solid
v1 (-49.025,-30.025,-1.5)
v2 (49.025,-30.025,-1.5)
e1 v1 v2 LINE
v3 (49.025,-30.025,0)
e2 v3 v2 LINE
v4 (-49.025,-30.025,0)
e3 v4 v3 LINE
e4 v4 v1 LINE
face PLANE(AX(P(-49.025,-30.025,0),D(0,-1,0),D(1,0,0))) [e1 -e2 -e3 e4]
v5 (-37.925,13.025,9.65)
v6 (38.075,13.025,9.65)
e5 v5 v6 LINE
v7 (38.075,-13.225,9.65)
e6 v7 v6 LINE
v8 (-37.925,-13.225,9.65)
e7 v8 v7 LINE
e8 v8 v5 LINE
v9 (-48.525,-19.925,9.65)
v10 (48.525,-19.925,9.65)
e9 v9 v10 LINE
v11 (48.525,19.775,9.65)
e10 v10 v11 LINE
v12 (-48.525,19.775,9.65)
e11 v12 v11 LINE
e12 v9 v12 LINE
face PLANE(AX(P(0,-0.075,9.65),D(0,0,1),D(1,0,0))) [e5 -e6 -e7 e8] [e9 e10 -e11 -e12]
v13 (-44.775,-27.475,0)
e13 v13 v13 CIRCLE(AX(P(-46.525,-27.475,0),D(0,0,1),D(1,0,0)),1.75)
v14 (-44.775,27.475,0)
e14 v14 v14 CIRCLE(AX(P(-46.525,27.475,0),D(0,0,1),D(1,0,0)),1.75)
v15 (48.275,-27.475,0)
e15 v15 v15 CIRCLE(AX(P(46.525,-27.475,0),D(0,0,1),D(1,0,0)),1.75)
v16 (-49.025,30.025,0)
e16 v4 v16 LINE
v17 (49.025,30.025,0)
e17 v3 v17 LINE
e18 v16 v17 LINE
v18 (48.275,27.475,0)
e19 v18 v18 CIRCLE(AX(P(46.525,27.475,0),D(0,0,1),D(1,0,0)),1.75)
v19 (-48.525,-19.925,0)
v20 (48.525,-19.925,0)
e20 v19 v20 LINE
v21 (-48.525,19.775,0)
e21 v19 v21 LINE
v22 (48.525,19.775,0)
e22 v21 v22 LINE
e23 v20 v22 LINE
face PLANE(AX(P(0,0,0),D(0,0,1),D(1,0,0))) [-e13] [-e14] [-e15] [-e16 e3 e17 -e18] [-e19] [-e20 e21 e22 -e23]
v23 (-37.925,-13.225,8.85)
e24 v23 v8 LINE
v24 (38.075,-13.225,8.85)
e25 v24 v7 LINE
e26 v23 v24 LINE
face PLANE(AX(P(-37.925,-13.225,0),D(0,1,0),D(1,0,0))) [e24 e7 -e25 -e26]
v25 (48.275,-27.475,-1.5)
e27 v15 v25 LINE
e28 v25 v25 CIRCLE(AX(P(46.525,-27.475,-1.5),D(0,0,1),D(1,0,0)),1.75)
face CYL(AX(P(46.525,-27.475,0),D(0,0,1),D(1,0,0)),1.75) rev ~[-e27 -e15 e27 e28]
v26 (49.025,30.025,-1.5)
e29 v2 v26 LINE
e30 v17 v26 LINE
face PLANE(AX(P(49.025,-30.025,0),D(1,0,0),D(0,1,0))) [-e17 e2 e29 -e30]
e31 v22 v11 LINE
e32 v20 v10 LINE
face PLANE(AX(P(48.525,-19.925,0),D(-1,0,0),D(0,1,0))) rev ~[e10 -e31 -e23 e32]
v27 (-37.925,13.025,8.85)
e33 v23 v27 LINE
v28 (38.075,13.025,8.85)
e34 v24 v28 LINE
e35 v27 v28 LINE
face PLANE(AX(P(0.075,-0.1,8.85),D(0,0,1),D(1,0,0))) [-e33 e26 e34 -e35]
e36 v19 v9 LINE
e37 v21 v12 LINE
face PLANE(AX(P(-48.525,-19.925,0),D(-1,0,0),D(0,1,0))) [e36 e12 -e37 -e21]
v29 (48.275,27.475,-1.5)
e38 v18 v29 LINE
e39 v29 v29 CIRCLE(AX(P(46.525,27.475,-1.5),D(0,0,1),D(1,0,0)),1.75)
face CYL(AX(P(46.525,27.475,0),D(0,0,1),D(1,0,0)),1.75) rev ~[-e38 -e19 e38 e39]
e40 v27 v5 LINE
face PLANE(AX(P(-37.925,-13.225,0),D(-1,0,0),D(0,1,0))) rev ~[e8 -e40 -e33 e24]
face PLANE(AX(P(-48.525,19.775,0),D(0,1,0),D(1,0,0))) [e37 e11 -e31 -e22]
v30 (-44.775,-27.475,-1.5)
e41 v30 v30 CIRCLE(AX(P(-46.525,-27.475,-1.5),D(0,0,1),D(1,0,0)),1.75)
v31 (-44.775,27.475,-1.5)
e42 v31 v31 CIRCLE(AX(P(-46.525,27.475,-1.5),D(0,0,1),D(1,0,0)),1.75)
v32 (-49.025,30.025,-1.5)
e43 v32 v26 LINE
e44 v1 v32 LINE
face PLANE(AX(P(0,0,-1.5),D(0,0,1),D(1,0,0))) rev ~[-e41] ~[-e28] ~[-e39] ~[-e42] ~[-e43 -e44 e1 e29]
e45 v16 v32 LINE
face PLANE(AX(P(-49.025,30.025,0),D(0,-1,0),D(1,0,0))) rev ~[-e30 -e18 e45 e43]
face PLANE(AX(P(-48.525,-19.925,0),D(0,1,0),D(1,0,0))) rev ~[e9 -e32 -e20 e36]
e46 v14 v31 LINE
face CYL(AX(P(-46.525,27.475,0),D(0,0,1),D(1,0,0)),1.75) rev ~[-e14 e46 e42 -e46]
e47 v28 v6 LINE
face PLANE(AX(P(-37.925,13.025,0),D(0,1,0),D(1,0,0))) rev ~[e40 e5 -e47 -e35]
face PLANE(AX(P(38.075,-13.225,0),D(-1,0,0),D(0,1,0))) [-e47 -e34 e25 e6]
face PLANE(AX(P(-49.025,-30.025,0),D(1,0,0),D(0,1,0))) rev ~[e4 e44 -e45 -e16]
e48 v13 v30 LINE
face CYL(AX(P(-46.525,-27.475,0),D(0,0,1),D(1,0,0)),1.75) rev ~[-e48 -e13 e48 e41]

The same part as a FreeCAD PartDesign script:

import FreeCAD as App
import Part
import Sketcher
Q = App.Units.Quantity

doc = App.newDocument("Part")
params = doc.addObject("Spreadsheet::Sheet", "Params")
for row, (alias, value) in enumerate([
    ("sketch1_diameter", "3.5 mm"),
    ("sketch1_width", "98.05 mm"),
    ("sketch1_height", "60.05 mm"),
    ("pad1_length", "1.5 mm"),
    ("sketch2_width", "76 mm"),
    ("sketch2_height", "39.7 mm"),
    ("sketch2_width2", "97.05 mm"),
    ("sketch2_height2", "26.25 mm"),
    ("pad2_length", "9.65 mm"),
    ("sketch3_width", "76 mm"),
    ("sketch3_height", "26.25 mm"),
    ("pad3_length", "8.85 mm"),
], start=1):
    params.set(f"A{row}", alias)
    params.set(f"B{row}", "=" + value)
    params.setAlias(f"B{row}", alias)

body = doc.addObject("PartDesign::Body", "Body")

# Sketch on XY plane
sketch1 = body.newObject("Sketcher::SketchObject", "Sketch")
sketch1.AttachmentSupport = (doc.getObject("XY_Plane"), [""])
sketch1.MapMode = "FlatFace"
sketch1.addGeometry([
    Part.LineSegment(App.Vector(-49, 30, 0), App.Vector(-49, -30, 0)),  # 0
    Part.LineSegment(App.Vector(-49, -30, 0), App.Vector(49, -30, 0)),  # 1
    Part.LineSegment(App.Vector(49, -30, 0), App.Vector(49, 30, 0)),  # 2
    Part.LineSegment(App.Vector(49, 30, 0), App.Vector(-49, 30, 0)),  # 3
    Part.Circle(App.Vector(-46.5, -27.5, 0), App.Vector(0, 0, 1), 1.8),  # 4
    Part.Circle(App.Vector(46.5, -27.5, 0), App.Vector(0, 0, 1), 1.8),  # 5
    Part.Circle(App.Vector(-46.5, 27.5, 0), App.Vector(0, 0, 1), 1.8),  # 6
    Part.Circle(App.Vector(46.5, 27.5, 0), App.Vector(0, 0, 1), 1.8),  # 7
], False)
sketch1.addConstraint([
    Sketcher.Constraint("Coincident", 0, 2, 1, 1),
    Sketcher.Constraint("Coincident", 1, 2, 2, 1),
    Sketcher.Constraint("Coincident", 2, 2, 3, 1),
    Sketcher.Constraint("Coincident", 3, 2, 0, 1),
    Sketcher.Constraint("Vertical", 0),
    Sketcher.Constraint("Horizontal", 1),
    Sketcher.Constraint("Vertical", 2),
    Sketcher.Constraint("Horizontal", 3),
    Sketcher.Constraint("Equal", 4, 5),
    Sketcher.Constraint("Equal", 5, 6),
    Sketcher.Constraint("Equal", 6, 7),
    Sketcher.Constraint("Symmetric", 5, 3, 6, 3, -1, 1),
    Sketcher.Constraint("Symmetric", 4, 3, 7, 3, -1, 1),
    Sketcher.Constraint("Symmetric", 0, 2, 2, 2, -1, 1),
    Sketcher.Constraint("Symmetric", 4, 3, 5, 3, -2),
    Sketcher.Constraint("Diameter", 4, Q("3.5 mm")),
    Sketcher.Constraint("DistanceX", 1, 1, 1, 2, Q("98.05 mm")),
    Sketcher.Constraint("DistanceY", 0, 2, 0, 1, Q("60.05 mm")),
    Sketcher.Constraint("DistanceX", 0, 2, 4, 3, Q("2.5 mm")),
    Sketcher.Constraint("DistanceY", 0, 2, 6, 3, Q("57.5 mm")),
])
sketch1.setExpression("Constraints[15]", "Params.sketch1_diameter")
sketch1.setExpression("Constraints[16]", "Params.sketch1_width")
sketch1.setExpression("Constraints[17]", "Params.sketch1_height")
pad1 = body.newObject("PartDesign::Pad", "Pad")
pad1.Profile = sketch1
pad1.setExpression("Length", "Params.pad1_length")
pad1.Reversed = True

# Sketch on XY plane
sketch2 = body.newObject("Sketcher::SketchObject", "Sketch001")
sketch2.AttachmentSupport = (doc.getObject("XY_Plane"), [""])
sketch2.MapMode = "FlatFace"
sketch2.addGeometry([
    Part.LineSegment(App.Vector(-49, 20, 0), App.Vector(-49, -20, 0)),  # 0
    Part.LineSegment(App.Vector(-49, -20, 0), App.Vector(49, -20, 0)),  # 1
    Part.LineSegment(App.Vector(49, -20, 0), App.Vector(49, 20, 0)),  # 2
    Part.LineSegment(App.Vector(49, 20, 0), App.Vector(-49, 20, 0)),  # 3
    Part.LineSegment(App.Vector(38, -13, 0), App.Vector(-38, -13, 0)),  # 4
    Part.LineSegment(App.Vector(-38, -13, 0), App.Vector(-38, 13, 0)),  # 5
    Part.LineSegment(App.Vector(-38, 13, 0), App.Vector(38, 13, 0)),  # 6
    Part.LineSegment(App.Vector(38, 13, 0), App.Vector(38, -13, 0)),  # 7
], False)
sketch2.addConstraint([
    Sketcher.Constraint("Coincident", 0, 2, 1, 1),
    Sketcher.Constraint("Coincident", 1, 2, 2, 1),
    Sketcher.Constraint("Coincident", 2, 2, 3, 1),
    Sketcher.Constraint("Coincident", 3, 2, 0, 1),
    Sketcher.Constraint("Coincident", 4, 2, 5, 1),
    Sketcher.Constraint("Coincident", 5, 2, 6, 1),
    Sketcher.Constraint("Coincident", 6, 2, 7, 1),
    Sketcher.Constraint("Coincident", 7, 2, 4, 1),
    Sketcher.Constraint("Vertical", 0),
    Sketcher.Constraint("Horizontal", 1),
    Sketcher.Constraint("Vertical", 2),
    Sketcher.Constraint("Horizontal", 3),
    Sketcher.Constraint("Horizontal", 4),
    Sketcher.Constraint("Vertical", 5),
    Sketcher.Constraint("Horizontal", 6),
    Sketcher.Constraint("Vertical", 7),
    Sketcher.Constraint("DistanceX", 4, 2, 4, 1, Q("76 mm")),
    Sketcher.Constraint("DistanceY", 0, 2, 0, 1, Q("39.7 mm")),
    Sketcher.Constraint("DistanceY", 4, 2, 3, 2, Q("33 mm")),
    Sketcher.Constraint("DistanceX", 1, 1, 1, 2, Q("97.05 mm")),
    Sketcher.Constraint("DistanceY", 5, 1, 5, 2, Q("26.25 mm")),
    Sketcher.Constraint("DistanceX", 0, 2, 4, 2, Q("10.6 mm")),
    Sketcher.Constraint("DistanceX", 0, 2, -1, 1, Q("48.525 mm")),
    Sketcher.Constraint("DistanceY", 0, 2, -1, 1, Q("19.925 mm")),
])
sketch2.setExpression("Constraints[16]", "Params.sketch2_width")
sketch2.setExpression("Constraints[17]", "Params.sketch2_height")
sketch2.setExpression("Constraints[19]", "Params.sketch2_width2")
sketch2.setExpression("Constraints[20]", "Params.sketch2_height2")
pad2 = body.newObject("PartDesign::Pad", "Pad001")
pad2.Profile = sketch2
pad2.setExpression("Length", "Params.pad2_length")

# Sketch on XY plane
sketch3 = body.newObject("Sketcher::SketchObject", "Sketch002")
sketch3.AttachmentSupport = (doc.getObject("XY_Plane"), [""])
sketch3.MapMode = "FlatFace"
sketch3.addGeometry([
    Part.LineSegment(App.Vector(-38, 13, 0), App.Vector(-38, -13, 0)),
    Part.LineSegment(App.Vector(-38, -13, 0), App.Vector(38, -13, 0)),
    Part.LineSegment(App.Vector(38, -13, 0), App.Vector(38, 13, 0)),
    Part.LineSegment(App.Vector(38, 13, 0), App.Vector(-38, 13, 0)),
], False)
sketch3.addConstraint([
    Sketcher.Constraint("Coincident", 0, 2, 1, 1),
    Sketcher.Constraint("Coincident", 1, 2, 2, 1),
    Sketcher.Constraint("Coincident", 2, 2, 3, 1),
    Sketcher.Constraint("Coincident", 3, 2, 0, 1),
    Sketcher.Constraint("Vertical", 0),
    Sketcher.Constraint("Horizontal", 1),
    Sketcher.Constraint("Vertical", 2),
    Sketcher.Constraint("Horizontal", 3),
    Sketcher.Constraint("DistanceX", 1, 1, 1, 2, Q("76 mm")),
    Sketcher.Constraint("DistanceY", 0, 2, 0, 1, Q("26.25 mm")),
    Sketcher.Constraint("DistanceX", 0, 2, -1, 1, Q("37.925 mm")),
    Sketcher.Constraint("DistanceY", 0, 2, -1, 1, Q("13.225 mm")),
])
sketch3.setExpression("Constraints[8]", "Params.sketch3_width")
sketch3.setExpression("Constraints[9]", "Params.sketch3_height")
pad3 = body.newObject("PartDesign::Pad", "Pad002")
pad3.Profile = sketch3
pad3.setExpression("Length", "Params.pad3_length")

doc.recompute()
